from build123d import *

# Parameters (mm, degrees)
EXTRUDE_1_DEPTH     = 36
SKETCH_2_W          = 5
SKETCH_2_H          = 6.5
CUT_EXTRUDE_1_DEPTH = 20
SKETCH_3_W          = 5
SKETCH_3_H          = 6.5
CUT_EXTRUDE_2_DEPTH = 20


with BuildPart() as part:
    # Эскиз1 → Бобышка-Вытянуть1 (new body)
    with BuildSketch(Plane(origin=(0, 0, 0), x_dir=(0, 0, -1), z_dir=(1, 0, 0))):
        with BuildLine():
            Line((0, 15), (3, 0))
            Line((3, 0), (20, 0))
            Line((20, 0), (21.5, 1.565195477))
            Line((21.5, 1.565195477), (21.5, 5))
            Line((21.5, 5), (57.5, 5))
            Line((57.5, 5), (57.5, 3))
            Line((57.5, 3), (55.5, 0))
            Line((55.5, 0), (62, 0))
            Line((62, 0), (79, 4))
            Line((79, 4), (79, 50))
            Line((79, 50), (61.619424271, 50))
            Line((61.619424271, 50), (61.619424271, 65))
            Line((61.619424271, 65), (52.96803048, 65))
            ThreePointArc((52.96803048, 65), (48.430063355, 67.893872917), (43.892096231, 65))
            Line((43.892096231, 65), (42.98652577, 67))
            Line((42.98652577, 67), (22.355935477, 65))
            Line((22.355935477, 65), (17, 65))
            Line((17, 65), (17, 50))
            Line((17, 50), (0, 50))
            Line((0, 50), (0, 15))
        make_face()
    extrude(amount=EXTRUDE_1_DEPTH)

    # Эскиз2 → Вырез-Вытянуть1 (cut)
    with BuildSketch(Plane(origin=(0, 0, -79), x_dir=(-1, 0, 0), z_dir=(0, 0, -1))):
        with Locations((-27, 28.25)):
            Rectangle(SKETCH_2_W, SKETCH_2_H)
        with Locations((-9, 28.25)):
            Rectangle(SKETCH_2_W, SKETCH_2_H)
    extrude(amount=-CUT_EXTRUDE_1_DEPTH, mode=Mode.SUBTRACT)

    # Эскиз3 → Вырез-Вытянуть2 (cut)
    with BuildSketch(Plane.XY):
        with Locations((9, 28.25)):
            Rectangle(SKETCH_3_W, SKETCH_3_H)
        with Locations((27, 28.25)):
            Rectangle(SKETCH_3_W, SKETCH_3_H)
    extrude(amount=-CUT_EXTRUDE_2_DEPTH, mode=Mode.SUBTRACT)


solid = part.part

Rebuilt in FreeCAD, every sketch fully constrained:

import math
import FreeCAD as App
import Part
import Sketcher
Q = App.Units.Quantity


def add_polygon(sketch, points):
    """Adds a closed chain of lines whose ends are joined by coincident constraints."""
    first, n = sketch.GeometryCount, len(points)
    for a, b in zip(points, points[1:] + points[:1]):
        sketch.addGeometry(Part.LineSegment(App.Vector(*a, 0), App.Vector(*b, 0)), False)
    for i in range(n):
        sketch.addConstraint(Sketcher.Constraint("Coincident", first + i, 2, first + (i + 1) % n, 1))

doc = App.newDocument("Part")
body = doc.addObject("PartDesign::Body", "Body")

sketch1 = body.newObject("Sketcher::SketchObject", "Sketch")
sketch1.AttachmentSupport = (doc.getObject("YZ_Plane"), [""])
sketch1.MapMode = "FlatFace"
sketch1.addGeometry([
    Part.LineSegment(App.Vector(15, 0, 0), App.Vector(0, -3, 0)),
    Part.LineSegment(App.Vector(0, -3, 0), App.Vector(0, -20, 0)),
    Part.LineSegment(App.Vector(0, -20, 0), App.Vector(1.565195, -21.5, 0)),
    Part.LineSegment(App.Vector(1.565195, -21.5, 0), App.Vector(5, -21.5, 0)),
    Part.LineSegment(App.Vector(5, -21.5, 0), App.Vector(5, -57.5, 0)),
    Part.LineSegment(App.Vector(5, -57.5, 0), App.Vector(3, -57.5, 0)),
    Part.LineSegment(App.Vector(3, -57.5, 0), App.Vector(0, -55.5, 0)),
    Part.LineSegment(App.Vector(0, -55.5, 0), App.Vector(0, -62, 0)),
    Part.LineSegment(App.Vector(0, -62, 0), App.Vector(4, -79, 0)),
    Part.LineSegment(App.Vector(4, -79, 0), App.Vector(50, -79, 0)),
    Part.LineSegment(App.Vector(50, -79, 0), App.Vector(50, -61.619424, 0)),
    Part.LineSegment(App.Vector(50, -61.619424, 0), App.Vector(65, -61.619424, 0)),
    Part.LineSegment(App.Vector(65, -61.619424, 0), App.Vector(65, -52.96803, 0)),
    Part.ArcOfCircle(Part.Circle(App.Vector(62.888877, -48.430063, 0), App.Vector(0, 0, 1), 5.004996), math.radians(-65.051518), math.radians(65.051518)),
    Part.LineSegment(App.Vector(65, -43.892096, 0), App.Vector(67, -42.986526, 0)),
    Part.LineSegment(App.Vector(67, -42.986526, 0), App.Vector(65, -22.355935, 0)),
    Part.LineSegment(App.Vector(65, -22.355935, 0), App.Vector(65, -17, 0)),
    Part.LineSegment(App.Vector(65, -17, 0), App.Vector(50, -17, 0)),
    Part.LineSegment(App.Vector(50, -17, 0), App.Vector(50, 0, 0)),
    Part.LineSegment(App.Vector(50, 0, 0), App.Vector(15, 0, 0)),
], False)
sketch1.addConstraint([
    Sketcher.Constraint("Coincident", 0, 2, 1, 1),
    Sketcher.Constraint("Coincident", 1, 2, 2, 1),
    Sketcher.Constraint("Coincident", 2, 2, 3, 1),
    Sketcher.Constraint("Coincident", 3, 2, 4, 1),
    Sketcher.Constraint("Coincident", 4, 2, 5, 1),
    Sketcher.Constraint("Coincident", 5, 2, 6, 1),
    Sketcher.Constraint("Coincident", 6, 2, 7, 1),
    Sketcher.Constraint("Coincident", 7, 2, 8, 1),
    Sketcher.Constraint("Coincident", 8, 2, 9, 1),
    Sketcher.Constraint("Coincident", 9, 2, 10, 1),
    Sketcher.Constraint("Coincident", 10, 2, 11, 1),
    Sketcher.Constraint("Coincident", 11, 2, 12, 1),
    Sketcher.Constraint("Coincident", 12, 2, 13, 1),
    Sketcher.Constraint("Coincident", 13, 2, 14, 1),
    Sketcher.Constraint("Coincident", 14, 2, 15, 1),
    Sketcher.Constraint("Coincident", 15, 2, 16, 1),
    Sketcher.Constraint("Coincident", 16, 2, 17, 1),
    Sketcher.Constraint("Coincident", 17, 2, 18, 1),
    Sketcher.Constraint("Coincident", 18, 2, 19, 1),
    Sketcher.Constraint("Coincident", 19, 2, 0, 1),
    Sketcher.Constraint("Vertical", 1),
    Sketcher.Constraint("Horizontal", 3),
    Sketcher.Constraint("Vertical", 4),
    Sketcher.Constraint("Horizontal", 5),
    Sketcher.Constraint("Vertical", 7),
    Sketcher.Constraint("Horizontal", 9),
    Sketcher.Constraint("Vertical", 10),
    Sketcher.Constraint("Horizontal", 11),
    Sketcher.Constraint("Vertical", 12),
    Sketcher.Constraint("Vertical", 16),
    Sketcher.Constraint("Horizontal", 17),
    Sketcher.Constraint("Vertical", 18),
    Sketcher.Constraint("Horizontal", 19),
    Sketcher.Constraint("PointOnObject", 0, 2, -2),
    Sketcher.Constraint("PointOnObject", 6, 2, -2),
    Sketcher.Constraint("PointOnObject", 18, 2, -1),
    Sketcher.Constraint("Vertical", 12, 2, 13, 2),
    Sketcher.Constraint("Vertical", 13, 2, 15, 2),
    Sketcher.Constraint("Vertical", 10, 2, 17, 2),
    Sketcher.Constraint("Equal", 1, 18),
    Sketcher.Constraint("DistanceX", 5, 2, 5, 1, Q("2 mm")),
    Sketcher.Constraint("DistanceX", 9, 1, 9, 2, Q("46 mm")),
    Sketcher.Constraint("DistanceX", 11, 1, 11, 2, Q("15 mm")),
    Sketcher.Constraint("DistanceX", 19, 2, 19, 1, Q("35 mm")),
    Sketcher.Constraint("DistanceY", 1, 2, 1, 1, Q("17 mm")),
    Sketcher.Constraint("DistanceY", 4, 2, 4, 1, Q("36 mm")),
    Sketcher.Constraint("DistanceY", 7, 2, 7, 1, Q("6.5 mm")),
    Sketcher.Constraint("DistanceY", 0, 2, -1, 1, Q("3 mm")),
    Sketcher.Constraint("DistanceX", -1, 1, 3, 2, Q("5 mm")),
    Sketcher.Constraint("DistanceY", 7, 2, -1, 1, Q("62 mm")),
    Sketcher.Constraint("DistanceX", -1, 1, 8, 2, Q("4 mm")),
    Sketcher.Constraint("DistanceY", 8, 2, -1, 1, Q("79 mm")),
    Sketcher.Constraint("DistanceX", -1, 1, 14, 2, Q("67 mm")),
    Sketcher.Constraint("DistanceY", 5, 2, 6, 2, Q("2 mm")),
    Sketcher.Constraint("Radius", 13, Q("5.004996 mm")),
    Sketcher.Constraint("DistanceY", 11, 2, 14, 2, Q("18.632899 mm")),
    Sketcher.Constraint("Distance", 2, Q("2.167911 mm")),
    Sketcher.Constraint("DistanceY", 10, 1, 10, 2, Q("17.380576 mm")),
    Sketcher.Constraint("DistanceY", 12, 1, 12, 2, Q("8.651394 mm")),
    Sketcher.Constraint("DistanceY", 16, 1, 16, 2, Q("5.355935 mm")),
    Sketcher.Constraint("DistanceX", 2, 2, 13, 3, Q("61.323681 mm")),
])
pad1 = body.newObject("PartDesign::Pad", "Pad")
pad1.Profile = sketch1
pad1.Length = 36

sketch2 = body.newObject("Sketcher::SketchObject", "Sketch001")
sketch2.AttachmentSupport = (doc.getObject("XY_Plane"), [""])
sketch2.MapMode = "FlatFace"
sketch2.AttachmentOffset = App.Placement(App.Vector(0, 0, -79), App.Rotation())
add_polygon(sketch2, [(29.5, 31.5), (29.5, 25), (24.5, 25), (24.5, 31.5)])
add_polygon(sketch2, [(11.5, 31.5), (11.5, 25), (6.5, 25), (6.5, 31.5)])
sketch2.addConstraint([
    Sketcher.Constraint("Vertical", 0),
    Sketcher.Constraint("Horizontal", 1),
    Sketcher.Constraint("Vertical", 2),
    Sketcher.Constraint("Horizontal", 3),
    Sketcher.Constraint("Vertical", 4),
    Sketcher.Constraint("Horizontal", 5),
    Sketcher.Constraint("Vertical", 6),
    Sketcher.Constraint("Horizontal", 7),
    Sketcher.Constraint("Horizontal", 1, 2, 4, 2),
    Sketcher.Constraint("Horizontal", 3, 2, 6, 2),
    Sketcher.Constraint("Equal", 3, 5),
    Sketcher.Constraint("DistanceX", 1, 2, 1, 1, Q("5 mm")),
    Sketcher.Constraint("DistanceY", 0, 2, 0, 1, Q("6.5 mm")),
    Sketcher.Constraint("DistanceY", -1, 1, 0, 2, Q("25 mm")),
    Sketcher.Constraint("DistanceX", 4, 2, 1, 2, Q("13 mm")),
    Sketcher.Constraint("DistanceX", -1, 1, 0, 2, Q("29.5 mm")),
])
pocket1 = body.newObject("PartDesign::Pocket", "Pocket")
pocket1.Profile = sketch2
pocket1.Length = 20
pocket1.Reversed = True

sketch3 = body.newObject("Sketcher::SketchObject", "Sketch002")
sketch3.AttachmentSupport = (doc.getObject("XY_Plane"), [""])
sketch3.MapMode = "FlatFace"
add_polygon(sketch3, [(6.5, 31.5), (6.5, 25), (11.5, 25), (11.5, 31.5)])
add_polygon(sketch3, [(24.5, 31.5), (24.5, 25), (29.5, 25), (29.5, 31.5)])
sketch3.addConstraint([
    Sketcher.Constraint("Vertical", 0),
    Sketcher.Constraint("Horizontal", 1),
    Sketcher.Constraint("Vertical", 2),
    Sketcher.Constraint("Horizontal", 3),
    Sketcher.Constraint("Vertical", 4),
    Sketcher.Constraint("Horizontal", 5),
    Sketcher.Constraint("Vertical", 6),
    Sketcher.Constraint("Horizontal", 7),
    Sketcher.Constraint("Horizontal", 1, 2, 4, 2),
    Sketcher.Constraint("Horizontal", 3, 2, 6, 2),
    Sketcher.Constraint("Equal", 3, 5),
    Sketcher.Constraint("DistanceX", 1, 1, 1, 2, Q("5 mm")),
    Sketcher.Constraint("DistanceY", 0, 2, 0, 1, Q("6.5 mm")),
    Sketcher.Constraint("DistanceY", -1, 1, 0, 2, Q("25 mm")),
    Sketcher.Constraint("DistanceX", 1, 2, 4, 2, Q("13 mm")),
    Sketcher.Constraint("DistanceX", -1, 1, 0, 2, Q("6.5 mm")),
])
pocket2 = body.newObject("PartDesign::Pocket", "Pocket001")
pocket2.Profile = sketch3
pocket2.Length = 20

doc.recompute()
